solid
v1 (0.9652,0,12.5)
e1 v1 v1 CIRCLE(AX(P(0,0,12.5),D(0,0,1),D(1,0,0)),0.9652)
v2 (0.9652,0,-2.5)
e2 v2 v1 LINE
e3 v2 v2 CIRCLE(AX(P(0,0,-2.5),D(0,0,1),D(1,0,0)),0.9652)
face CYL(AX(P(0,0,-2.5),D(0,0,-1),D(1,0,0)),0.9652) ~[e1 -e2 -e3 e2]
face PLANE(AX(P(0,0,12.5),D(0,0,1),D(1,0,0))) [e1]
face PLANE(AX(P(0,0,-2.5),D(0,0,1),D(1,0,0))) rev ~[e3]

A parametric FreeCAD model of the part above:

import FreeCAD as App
import Part
import Sketcher

doc = App.newDocument("Part")
body = doc.addObject("PartDesign::Body", "Body")

# Sketch on XY plane
sketch1 = body.newObject("Sketcher::SketchObject", "Sketch")
sketch1.AttachmentSupport = (doc.getObject("XY_Plane"), [""])
sketch1.MapMode = "FlatFace"
sketch1.AttachmentOffset = App.Placement(App.Vector(0, 0, -2.5), App.Rotation())
sketch1.addGeometry(Part.Circle(App.Vector(0, 0, 0), App.Vector(0, 0, 1), 0.9652), False)
sketch1.addConstraint(Sketcher.Constraint("Coincident", 0, 3, -1, 1))
sketch1.addConstraint(Sketcher.Constraint("Diameter", 0, 1.9304))
pad1 = body.newObject("PartDesign::Pad", "Pad")
pad1.Profile = sketch1
pad1.Length = 15

doc.recompute()
